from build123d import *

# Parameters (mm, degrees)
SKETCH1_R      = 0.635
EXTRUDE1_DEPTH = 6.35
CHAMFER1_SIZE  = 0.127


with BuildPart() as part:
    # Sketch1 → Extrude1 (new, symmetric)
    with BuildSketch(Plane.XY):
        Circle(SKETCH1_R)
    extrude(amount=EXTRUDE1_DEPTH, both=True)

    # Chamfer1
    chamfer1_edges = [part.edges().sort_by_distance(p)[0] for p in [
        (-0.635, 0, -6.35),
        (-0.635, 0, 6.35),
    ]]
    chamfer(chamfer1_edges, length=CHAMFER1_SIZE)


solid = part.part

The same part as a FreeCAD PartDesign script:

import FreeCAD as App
import Part
import Sketcher
Q = App.Units.Quantity


def edges_at(feature, points):
    """Names of the edges that pass closest to the given points."""
    edges = feature.Shape.Edges
    near = lambda p: min(range(len(edges)), key=lambda i: edges[i].distToShape(Part.Vertex(*p))[0])
    return sorted({f"Edge{near(p) + 1}" for p in points})

doc = App.newDocument("Part")
body = doc.addObject("PartDesign::Body", "Body")

# Sketch on XY plane
sketch1 = body.newObject("Sketcher::SketchObject", "Sketch")
sketch1.AttachmentSupport = (doc.getObject("XY_Plane"), [""])
sketch1.MapMode = "FlatFace"
sketch1.addGeometry(Part.Circle(App.Vector(0, 0, 0), App.Vector(0, 0, 1), 0.6), False)
sketch1.addConstraint([
    Sketcher.Constraint("Coincident", 0, 3, -1, 1),
    Sketcher.Constraint("Diameter", 0, Q("0.05 in")),
])
pad1 = body.newObject("PartDesign::Pad", "Pad")
pad1.Profile = sketch1
pad1.Length = Q("0.5 in")
pad1.Midplane = True
doc.recompute()

chamfer = body.newObject("PartDesign::Chamfer", "Chamfer")
chamfer.Base = (pad1, edges_at(pad1, [(-0.635, 0, -6.35), (-0.635, 0, 6.35)]))
chamfer.Size = Q("0.005 in")

doc.recompute()
